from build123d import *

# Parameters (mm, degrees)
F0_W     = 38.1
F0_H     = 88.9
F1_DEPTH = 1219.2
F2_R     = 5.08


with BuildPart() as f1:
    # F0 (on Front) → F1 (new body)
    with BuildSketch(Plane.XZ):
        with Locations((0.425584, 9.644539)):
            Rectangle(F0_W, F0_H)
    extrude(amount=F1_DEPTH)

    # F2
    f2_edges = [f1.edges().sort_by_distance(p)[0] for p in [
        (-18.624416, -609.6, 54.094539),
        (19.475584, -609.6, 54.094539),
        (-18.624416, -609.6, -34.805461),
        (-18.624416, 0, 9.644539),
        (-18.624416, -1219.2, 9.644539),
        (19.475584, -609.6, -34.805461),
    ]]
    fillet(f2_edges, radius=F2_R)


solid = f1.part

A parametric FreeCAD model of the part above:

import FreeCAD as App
import Part
import Sketcher

V = App.Vector
Q = App.Units.Quantity


def edges_at(feature, points):
    """Names of the edges that pass closest to the given points."""
    edges = feature.Shape.Edges
    near = lambda p: min(range(len(edges)), key=lambda i: edges[i].distToShape(Part.Vertex(*p))[0])
    return sorted({f"Edge{near(p) + 1}" for p in points})


def add_polygon(sketch, points):
    """Adds a closed chain of lines whose ends are joined by coincident constraints."""
    first, n = sketch.GeometryCount, len(points)
    for a, b in zip(points, points[1:] + points[:1]):
        sketch.addGeometry(Part.LineSegment(App.Vector(*a, 0), App.Vector(*b, 0)), False)
    for i in range(n):
        sketch.addConstraint(Sketcher.Constraint("Coincident", first + i, 2, first + (i + 1) % n, 1))

doc = App.newDocument("Part")
body = doc.addObject("PartDesign::Body", "Body")

# Sketch on XZ plane
sketch1 = body.newObject("Sketcher::SketchObject", "Sketch")
sketch1.AttachmentSupport = (doc.getObject("XZ_Plane"), [""])
sketch1.MapMode = "FlatFace"
add_polygon(sketch1, [(-19, 54), (-19, -35), (19, -35), (19, 54)])  # lines 0-3
sketch1.addConstraint([
    Sketcher.Constraint("Vertical", 0),
    Sketcher.Constraint("Horizontal", 1),
    Sketcher.Constraint("Vertical", 2),
    Sketcher.Constraint("Horizontal", 3),
    Sketcher.Constraint("DistanceX", 1, 1, 1, 2, Q("1.5 in")),
    Sketcher.Constraint("DistanceY", 0, 2, 0, 1, Q("3.5 in")),
    Sketcher.Constraint("DistanceY", 0, 2, -1, 1, Q("34.805461 mm")),
    Sketcher.Constraint("DistanceX", 0, 2, -1, 1, Q("18.624416 mm")),
])
pad1 = body.newObject("PartDesign::Pad", "Pad")
pad1.Profile = sketch1
pad1.Length = Q("48 in")
doc.recompute()

fillet = body.newObject("PartDesign::Fillet", "Fillet")
fillet.Base = (pad1, edges_at(pad1, [
    (-18.624, -609.6, 54.095),
    (19.476, -609.6, 54.095),
    (-18.624, -609.6, -34.805),
    (-18.624, 0, 9.645),
    (-18.624, -1219.2, 9.645),
    (19.476, -609.6, -34.805),
]))
fillet.Radius = Q("0.2 in")

doc.recompute()
